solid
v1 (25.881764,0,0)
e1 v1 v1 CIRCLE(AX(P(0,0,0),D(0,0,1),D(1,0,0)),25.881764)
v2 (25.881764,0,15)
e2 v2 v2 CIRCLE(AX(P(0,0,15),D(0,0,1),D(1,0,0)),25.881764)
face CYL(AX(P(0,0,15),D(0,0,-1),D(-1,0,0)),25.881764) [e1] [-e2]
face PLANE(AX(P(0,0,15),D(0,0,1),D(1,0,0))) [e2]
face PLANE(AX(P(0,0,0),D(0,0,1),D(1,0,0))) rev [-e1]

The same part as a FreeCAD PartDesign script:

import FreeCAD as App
import Part
import Sketcher

doc = App.newDocument("Part")
body = doc.addObject("PartDesign::Body", "Body")

# Sketch on XY plane
sketch1 = body.newObject("Sketcher::SketchObject", "Sketch")
sketch1.AttachmentSupport = (doc.getObject("XY_Plane"), [""])
sketch1.MapMode = "FlatFace"
sketch1.addGeometry(Part.Circle(App.Vector(0, 0, 0), App.Vector(0, 0, 1), 26), False)
sketch1.addConstraint([
    Sketcher.Constraint("Coincident", 0, 3, -1, 1),
    Sketcher.Constraint("Diameter", 0, 51.763528),
])
pad1 = body.newObject("PartDesign::Pad", "Pad")
pad1.Profile = sketch1
pad1.Length = 15

doc.recompute()
